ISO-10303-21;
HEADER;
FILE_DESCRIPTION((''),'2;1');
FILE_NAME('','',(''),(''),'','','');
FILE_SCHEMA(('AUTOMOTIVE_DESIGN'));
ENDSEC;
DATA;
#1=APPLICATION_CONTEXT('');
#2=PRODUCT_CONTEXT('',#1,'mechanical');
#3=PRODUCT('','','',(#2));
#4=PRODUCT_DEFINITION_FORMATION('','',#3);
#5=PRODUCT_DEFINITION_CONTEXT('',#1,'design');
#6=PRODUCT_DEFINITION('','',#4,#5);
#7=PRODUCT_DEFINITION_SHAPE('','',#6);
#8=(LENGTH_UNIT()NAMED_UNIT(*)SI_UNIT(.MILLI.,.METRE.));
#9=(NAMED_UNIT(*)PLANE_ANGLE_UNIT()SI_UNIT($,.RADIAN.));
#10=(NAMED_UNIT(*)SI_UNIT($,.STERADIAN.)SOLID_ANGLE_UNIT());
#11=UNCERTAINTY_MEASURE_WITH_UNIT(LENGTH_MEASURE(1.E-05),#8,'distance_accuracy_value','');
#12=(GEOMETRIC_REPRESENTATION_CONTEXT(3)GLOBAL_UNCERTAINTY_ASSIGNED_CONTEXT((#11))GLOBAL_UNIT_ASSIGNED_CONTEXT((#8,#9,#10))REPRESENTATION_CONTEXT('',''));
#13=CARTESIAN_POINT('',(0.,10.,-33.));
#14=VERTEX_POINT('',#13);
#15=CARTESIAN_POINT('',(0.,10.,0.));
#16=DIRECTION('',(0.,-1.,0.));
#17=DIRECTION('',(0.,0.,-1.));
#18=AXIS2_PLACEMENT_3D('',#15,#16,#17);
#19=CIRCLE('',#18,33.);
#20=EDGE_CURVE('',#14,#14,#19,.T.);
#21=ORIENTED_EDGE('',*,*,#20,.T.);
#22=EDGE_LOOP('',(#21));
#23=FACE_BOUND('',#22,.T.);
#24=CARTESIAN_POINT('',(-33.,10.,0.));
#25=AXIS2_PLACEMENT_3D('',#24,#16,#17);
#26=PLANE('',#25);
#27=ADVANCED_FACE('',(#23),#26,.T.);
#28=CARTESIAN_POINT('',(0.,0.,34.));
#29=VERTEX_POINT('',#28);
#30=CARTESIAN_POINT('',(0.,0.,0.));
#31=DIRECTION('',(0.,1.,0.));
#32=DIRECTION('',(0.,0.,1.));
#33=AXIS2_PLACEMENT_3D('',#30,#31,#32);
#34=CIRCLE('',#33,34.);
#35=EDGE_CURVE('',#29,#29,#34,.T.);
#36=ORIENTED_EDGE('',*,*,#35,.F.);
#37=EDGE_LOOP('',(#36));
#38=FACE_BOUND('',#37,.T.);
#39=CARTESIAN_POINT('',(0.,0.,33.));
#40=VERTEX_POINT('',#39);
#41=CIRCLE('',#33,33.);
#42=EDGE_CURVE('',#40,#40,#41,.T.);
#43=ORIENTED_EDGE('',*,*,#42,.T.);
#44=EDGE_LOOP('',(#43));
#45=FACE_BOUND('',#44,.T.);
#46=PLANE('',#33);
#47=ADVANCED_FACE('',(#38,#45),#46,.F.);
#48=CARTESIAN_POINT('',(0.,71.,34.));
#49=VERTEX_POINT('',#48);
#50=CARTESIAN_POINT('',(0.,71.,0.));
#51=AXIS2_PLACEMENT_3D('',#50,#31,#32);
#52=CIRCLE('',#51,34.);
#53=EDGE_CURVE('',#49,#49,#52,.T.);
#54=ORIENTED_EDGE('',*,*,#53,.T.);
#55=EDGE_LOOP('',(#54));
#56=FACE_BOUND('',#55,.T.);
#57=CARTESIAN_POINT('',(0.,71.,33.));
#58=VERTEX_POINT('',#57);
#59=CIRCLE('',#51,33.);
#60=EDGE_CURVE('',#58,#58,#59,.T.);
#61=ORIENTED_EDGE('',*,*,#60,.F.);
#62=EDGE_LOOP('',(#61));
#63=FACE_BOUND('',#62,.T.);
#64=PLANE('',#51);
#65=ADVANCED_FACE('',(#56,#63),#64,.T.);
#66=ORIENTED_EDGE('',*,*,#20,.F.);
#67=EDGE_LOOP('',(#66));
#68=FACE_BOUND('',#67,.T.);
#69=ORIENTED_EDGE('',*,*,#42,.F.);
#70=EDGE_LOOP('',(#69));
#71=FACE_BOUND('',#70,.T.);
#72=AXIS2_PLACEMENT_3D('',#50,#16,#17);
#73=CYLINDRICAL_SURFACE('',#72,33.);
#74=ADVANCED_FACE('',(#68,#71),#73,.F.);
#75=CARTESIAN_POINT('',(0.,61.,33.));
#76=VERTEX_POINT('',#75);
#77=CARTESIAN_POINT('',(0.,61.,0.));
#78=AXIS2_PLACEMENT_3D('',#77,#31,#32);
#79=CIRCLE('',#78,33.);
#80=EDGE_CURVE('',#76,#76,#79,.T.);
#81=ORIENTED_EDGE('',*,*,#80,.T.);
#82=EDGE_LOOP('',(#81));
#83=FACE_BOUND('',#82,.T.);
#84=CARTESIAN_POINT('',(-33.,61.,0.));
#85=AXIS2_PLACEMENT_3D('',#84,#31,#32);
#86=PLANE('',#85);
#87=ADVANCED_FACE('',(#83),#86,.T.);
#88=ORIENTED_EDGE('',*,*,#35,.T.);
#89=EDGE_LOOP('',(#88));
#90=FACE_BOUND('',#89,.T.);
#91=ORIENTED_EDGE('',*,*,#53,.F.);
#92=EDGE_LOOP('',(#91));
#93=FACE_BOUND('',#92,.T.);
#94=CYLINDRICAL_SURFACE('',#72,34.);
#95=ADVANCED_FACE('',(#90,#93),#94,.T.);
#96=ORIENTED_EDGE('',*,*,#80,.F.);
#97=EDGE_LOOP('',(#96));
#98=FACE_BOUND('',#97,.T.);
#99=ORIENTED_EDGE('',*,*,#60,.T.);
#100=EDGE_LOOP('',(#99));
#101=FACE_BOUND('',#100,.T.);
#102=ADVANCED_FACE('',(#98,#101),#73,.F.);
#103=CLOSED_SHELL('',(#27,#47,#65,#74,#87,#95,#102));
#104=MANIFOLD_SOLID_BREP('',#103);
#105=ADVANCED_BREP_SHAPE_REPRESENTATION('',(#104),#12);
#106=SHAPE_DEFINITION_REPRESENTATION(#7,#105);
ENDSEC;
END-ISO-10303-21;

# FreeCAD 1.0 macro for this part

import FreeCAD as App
import Part
import Sketcher

doc = App.newDocument("Part")
body = doc.addObject("PartDesign::Body", "Body")

sketch1 = body.newObject("Sketcher::SketchObject", "Sketch")
sketch1.AttachmentSupport = (doc.getObject("XZ_Plane"), [""])
sketch1.MapMode = "FlatFace"
sketch1.addGeometry([
    Part.Circle(App.Vector(0, 0, 0), App.Vector(0, 0, 1), 34),
    Part.Circle(App.Vector(0, 0, 0), App.Vector(0, 0, 1), 33),
], False)
sketch1.addConstraint([
    Sketcher.Constraint("Coincident", 0, 3, -1, 1),
    Sketcher.Constraint("Coincident", 1, 3, -1, 1),
    Sketcher.Constraint("Diameter", 0, 68.0),
    Sketcher.Constraint("Diameter", 1, 66.0),
])
pad1 = body.newObject("PartDesign::Pad", "Pad")
pad1.Profile = sketch1
pad1.Length = 71
pad1.Reversed = True

sketch2 = body.newObject("Sketcher::SketchObject", "Sketch001")
sketch2.AttachmentSupport = (doc.getObject("XY_Plane"), [""])
sketch2.MapMode = "FlatFace"
sketch2.addGeometry([
    Part.LineSegment(App.Vector(-33, 61, 0), App.Vector(-33, 10, 0)),
    Part.LineSegment(App.Vector(-33, 10, 0), App.Vector(0, 10, 0)),
    Part.LineSegment(App.Vector(0, 10, 0), App.Vector(0, 61, 0)),
    Part.LineSegment(App.Vector(0, 61, 0), App.Vector(-33, 61, 0)),
], False)
sketch2.addConstraint([
    Sketcher.Constraint("Coincident", 0, 2, 1, 1),
    Sketcher.Constraint("Coincident", 1, 2, 2, 1),
    Sketcher.Constraint("Coincident", 2, 2, 3, 1),
    Sketcher.Constraint("Coincident", 3, 2, 0, 1),
    Sketcher.Constraint("Vertical", 0),
    Sketcher.Constraint("Horizontal", 1),
    Sketcher.Constraint("Vertical", 2),
    Sketcher.Constraint("Horizontal", 3),
    Sketcher.Constraint("PointOnObject", 1, 2, -2),
    Sketcher.Constraint("DistanceX", 1, 1, 1, 2, 33.0),
    Sketcher.Constraint("DistanceY", 0, 2, 0, 1, 51.0),
    Sketcher.Constraint("DistanceY", -1, 1, 0, 2, 10.0),
])
revolution = body.newObject("PartDesign::Revolution", "Revolution")
revolution.Profile = sketch2
revolution.ReferenceAxis = (sketch2, ["V_Axis"])
revolution.Angle = 360

doc.recompute()
